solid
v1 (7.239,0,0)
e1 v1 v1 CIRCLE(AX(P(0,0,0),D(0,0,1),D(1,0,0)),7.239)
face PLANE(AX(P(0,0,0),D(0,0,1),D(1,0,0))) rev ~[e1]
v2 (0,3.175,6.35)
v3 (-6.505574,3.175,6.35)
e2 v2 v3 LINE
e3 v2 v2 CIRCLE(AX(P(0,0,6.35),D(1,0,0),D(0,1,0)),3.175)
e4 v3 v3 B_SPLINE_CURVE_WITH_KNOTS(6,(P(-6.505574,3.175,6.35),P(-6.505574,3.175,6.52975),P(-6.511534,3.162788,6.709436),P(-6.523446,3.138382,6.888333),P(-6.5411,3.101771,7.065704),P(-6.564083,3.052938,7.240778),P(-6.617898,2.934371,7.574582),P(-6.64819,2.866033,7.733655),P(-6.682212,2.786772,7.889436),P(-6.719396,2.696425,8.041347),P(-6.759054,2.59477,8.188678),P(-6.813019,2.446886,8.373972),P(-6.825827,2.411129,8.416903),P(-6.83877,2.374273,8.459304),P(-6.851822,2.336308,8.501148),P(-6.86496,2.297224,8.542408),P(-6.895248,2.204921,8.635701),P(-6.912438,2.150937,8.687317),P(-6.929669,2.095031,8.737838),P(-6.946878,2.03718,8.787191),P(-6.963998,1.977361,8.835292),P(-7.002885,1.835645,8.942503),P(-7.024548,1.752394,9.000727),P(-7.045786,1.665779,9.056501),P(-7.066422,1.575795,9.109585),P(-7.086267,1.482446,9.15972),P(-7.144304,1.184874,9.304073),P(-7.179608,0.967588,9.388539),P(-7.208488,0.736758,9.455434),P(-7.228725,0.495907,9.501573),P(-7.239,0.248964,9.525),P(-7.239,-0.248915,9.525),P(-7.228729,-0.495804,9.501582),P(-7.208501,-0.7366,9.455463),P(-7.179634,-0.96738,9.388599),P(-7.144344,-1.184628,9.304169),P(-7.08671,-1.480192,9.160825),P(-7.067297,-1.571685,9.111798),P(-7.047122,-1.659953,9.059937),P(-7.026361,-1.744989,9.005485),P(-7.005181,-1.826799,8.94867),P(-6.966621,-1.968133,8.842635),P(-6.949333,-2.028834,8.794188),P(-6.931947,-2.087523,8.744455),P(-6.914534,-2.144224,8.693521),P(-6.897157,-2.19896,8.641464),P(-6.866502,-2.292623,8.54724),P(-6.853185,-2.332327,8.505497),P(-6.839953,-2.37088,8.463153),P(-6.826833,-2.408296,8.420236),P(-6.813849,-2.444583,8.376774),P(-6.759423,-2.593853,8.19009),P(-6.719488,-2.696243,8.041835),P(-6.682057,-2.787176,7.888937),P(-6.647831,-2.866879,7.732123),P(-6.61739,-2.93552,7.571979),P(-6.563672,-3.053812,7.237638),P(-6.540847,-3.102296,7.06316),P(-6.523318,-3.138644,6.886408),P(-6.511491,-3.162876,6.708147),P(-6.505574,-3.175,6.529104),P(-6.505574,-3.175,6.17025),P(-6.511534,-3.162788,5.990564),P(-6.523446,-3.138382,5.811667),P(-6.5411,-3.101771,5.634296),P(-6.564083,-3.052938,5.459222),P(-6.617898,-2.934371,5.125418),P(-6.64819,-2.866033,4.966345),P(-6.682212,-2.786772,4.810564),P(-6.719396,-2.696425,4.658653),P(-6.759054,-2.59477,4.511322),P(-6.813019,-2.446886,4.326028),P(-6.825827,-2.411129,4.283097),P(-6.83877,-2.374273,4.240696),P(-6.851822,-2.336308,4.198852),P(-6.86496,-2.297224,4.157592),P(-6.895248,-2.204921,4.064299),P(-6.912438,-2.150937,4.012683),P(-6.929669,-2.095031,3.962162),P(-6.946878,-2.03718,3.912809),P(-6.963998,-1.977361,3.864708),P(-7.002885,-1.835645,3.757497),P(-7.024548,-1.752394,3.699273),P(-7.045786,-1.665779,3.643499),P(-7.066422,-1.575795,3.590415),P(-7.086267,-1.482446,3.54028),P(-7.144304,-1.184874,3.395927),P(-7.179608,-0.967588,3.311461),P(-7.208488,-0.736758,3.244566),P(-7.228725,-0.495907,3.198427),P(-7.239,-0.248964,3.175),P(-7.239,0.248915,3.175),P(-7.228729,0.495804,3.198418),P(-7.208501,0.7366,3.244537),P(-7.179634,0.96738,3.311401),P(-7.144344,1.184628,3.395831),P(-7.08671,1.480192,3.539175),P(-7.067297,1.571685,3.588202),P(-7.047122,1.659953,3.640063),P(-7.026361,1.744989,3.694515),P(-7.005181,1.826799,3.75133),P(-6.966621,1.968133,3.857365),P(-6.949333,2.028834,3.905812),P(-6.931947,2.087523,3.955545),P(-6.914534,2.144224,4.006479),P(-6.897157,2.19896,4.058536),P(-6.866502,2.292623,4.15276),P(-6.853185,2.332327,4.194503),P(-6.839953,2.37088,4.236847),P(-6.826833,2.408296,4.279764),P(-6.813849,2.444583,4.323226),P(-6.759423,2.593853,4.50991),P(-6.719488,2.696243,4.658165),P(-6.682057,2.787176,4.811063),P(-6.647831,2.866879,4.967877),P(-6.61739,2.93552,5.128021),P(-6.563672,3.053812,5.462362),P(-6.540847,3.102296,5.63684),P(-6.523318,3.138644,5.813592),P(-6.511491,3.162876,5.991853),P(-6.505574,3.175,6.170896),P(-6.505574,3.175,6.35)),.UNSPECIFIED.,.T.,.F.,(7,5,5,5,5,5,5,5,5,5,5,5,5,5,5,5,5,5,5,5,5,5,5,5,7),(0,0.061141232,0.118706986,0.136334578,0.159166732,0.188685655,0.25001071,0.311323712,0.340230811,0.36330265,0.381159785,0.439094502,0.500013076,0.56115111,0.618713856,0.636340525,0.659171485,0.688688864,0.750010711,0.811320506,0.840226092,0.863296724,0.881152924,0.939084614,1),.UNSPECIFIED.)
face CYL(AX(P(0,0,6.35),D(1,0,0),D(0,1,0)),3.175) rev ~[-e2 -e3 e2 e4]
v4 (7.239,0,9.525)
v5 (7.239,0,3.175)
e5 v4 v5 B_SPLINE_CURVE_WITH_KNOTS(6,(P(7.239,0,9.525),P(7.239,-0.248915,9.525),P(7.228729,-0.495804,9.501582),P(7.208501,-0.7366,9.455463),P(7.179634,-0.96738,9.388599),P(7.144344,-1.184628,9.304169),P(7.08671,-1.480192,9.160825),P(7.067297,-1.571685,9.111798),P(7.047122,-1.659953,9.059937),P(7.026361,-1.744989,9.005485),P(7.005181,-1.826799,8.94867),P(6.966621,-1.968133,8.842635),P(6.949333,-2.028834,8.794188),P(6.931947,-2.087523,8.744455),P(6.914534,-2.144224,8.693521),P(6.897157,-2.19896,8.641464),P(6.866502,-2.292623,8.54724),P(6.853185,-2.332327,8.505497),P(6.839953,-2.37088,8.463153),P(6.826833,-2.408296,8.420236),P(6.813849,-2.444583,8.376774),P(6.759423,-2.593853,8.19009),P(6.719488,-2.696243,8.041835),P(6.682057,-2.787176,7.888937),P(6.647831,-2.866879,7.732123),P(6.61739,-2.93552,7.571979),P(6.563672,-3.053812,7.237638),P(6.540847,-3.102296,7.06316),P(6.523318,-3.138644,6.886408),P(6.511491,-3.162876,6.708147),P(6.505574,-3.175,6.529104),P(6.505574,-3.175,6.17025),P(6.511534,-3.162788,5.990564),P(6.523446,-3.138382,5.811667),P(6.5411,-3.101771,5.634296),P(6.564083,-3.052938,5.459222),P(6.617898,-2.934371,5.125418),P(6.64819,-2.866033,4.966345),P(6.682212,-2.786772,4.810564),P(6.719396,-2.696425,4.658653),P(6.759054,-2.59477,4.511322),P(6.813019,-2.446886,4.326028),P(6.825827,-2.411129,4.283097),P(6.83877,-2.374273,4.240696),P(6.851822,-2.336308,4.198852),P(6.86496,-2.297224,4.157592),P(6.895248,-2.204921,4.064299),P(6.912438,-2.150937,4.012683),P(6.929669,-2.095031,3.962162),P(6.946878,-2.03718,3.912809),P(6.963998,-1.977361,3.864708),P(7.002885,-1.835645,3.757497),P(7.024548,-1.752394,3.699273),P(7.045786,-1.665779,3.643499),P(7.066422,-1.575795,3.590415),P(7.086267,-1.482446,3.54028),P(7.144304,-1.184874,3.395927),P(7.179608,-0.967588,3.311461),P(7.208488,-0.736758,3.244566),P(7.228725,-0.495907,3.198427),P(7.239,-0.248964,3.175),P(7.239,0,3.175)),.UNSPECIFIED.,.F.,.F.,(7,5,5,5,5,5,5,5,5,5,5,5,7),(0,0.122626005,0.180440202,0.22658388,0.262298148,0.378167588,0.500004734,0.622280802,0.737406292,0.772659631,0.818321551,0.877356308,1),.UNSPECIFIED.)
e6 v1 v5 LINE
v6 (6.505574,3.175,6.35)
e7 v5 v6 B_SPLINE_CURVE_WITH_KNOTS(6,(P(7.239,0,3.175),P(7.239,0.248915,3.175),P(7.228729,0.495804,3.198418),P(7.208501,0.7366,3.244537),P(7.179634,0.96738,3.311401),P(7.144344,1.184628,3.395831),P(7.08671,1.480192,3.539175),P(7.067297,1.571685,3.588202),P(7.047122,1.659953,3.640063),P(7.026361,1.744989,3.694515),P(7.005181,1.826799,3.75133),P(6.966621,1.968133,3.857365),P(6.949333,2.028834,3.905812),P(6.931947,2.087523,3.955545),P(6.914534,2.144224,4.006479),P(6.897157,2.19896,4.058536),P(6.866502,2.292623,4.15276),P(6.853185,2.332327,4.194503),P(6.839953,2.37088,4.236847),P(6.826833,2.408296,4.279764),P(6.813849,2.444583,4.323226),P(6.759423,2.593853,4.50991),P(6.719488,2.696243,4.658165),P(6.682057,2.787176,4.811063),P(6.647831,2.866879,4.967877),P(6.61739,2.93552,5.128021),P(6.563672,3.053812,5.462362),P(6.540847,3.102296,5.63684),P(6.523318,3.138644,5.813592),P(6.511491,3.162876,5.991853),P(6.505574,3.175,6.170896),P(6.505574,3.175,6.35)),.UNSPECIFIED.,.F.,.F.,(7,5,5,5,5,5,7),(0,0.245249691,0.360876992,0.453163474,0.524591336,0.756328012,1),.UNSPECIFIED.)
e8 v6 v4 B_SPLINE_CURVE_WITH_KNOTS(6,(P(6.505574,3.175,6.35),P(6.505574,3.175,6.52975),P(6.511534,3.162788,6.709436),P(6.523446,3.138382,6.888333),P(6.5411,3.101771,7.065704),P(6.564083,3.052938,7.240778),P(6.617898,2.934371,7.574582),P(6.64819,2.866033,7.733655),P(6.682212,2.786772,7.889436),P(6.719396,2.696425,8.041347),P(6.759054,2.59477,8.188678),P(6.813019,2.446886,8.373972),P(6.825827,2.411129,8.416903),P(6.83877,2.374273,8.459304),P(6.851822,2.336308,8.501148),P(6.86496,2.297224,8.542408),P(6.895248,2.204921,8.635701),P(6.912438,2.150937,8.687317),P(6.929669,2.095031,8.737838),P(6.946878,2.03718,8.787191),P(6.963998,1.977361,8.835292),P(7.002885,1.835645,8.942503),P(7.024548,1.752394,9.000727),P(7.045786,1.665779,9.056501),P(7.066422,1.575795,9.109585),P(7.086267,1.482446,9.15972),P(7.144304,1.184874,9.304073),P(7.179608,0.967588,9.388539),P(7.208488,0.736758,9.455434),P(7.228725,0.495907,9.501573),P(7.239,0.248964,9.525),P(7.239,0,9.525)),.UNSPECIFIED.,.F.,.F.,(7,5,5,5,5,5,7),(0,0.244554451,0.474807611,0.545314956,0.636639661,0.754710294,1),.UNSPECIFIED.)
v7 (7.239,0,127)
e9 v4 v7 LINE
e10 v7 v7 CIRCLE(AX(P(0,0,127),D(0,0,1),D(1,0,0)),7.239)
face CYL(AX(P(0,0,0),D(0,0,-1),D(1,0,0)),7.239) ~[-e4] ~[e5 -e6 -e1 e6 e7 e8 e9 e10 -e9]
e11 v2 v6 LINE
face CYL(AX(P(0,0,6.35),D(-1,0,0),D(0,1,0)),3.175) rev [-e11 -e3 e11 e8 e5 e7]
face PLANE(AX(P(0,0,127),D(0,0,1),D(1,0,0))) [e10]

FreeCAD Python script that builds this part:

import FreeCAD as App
import Part
import Sketcher
Q = App.Units.Quantity

doc = App.newDocument("Part")
params = doc.addObject("Spreadsheet::Sheet", "Params")
for row, (alias, value) in enumerate([
    ("sketch1_diameter", "0.57 in"),
    ("pad1_length", "5 in"),
    ("sketch2_diameter", "0.25 in"),
], start=1):
    params.set(f"A{row}", alias)
    params.set(f"B{row}", "=" + value)
    params.setAlias(f"B{row}", alias)

body = doc.addObject("PartDesign::Body", "Body")

sketch1 = doc.addObject("Sketcher::SketchObject", "Sketch")
body.addObject(sketch1)
sketch1.AttachmentSupport = (doc.XY_Plane, [""])
sketch1.MapMode = "FlatFace"
sketch1.addGeometry(Part.Circle(App.Vector(0, 0, 0), App.Vector(0, 0, 1), 7), False)
sketch1.addConstraint(Sketcher.Constraint("Coincident", 0, 3, -1, 1))
sketch1.addConstraint(Sketcher.Constraint("Diameter", 0, Q("0.57 in")))
sketch1.setExpression("Constraints[1]", "Params.sketch1_diameter")
pad1 = doc.addObject("PartDesign::Pad", "Pad")
body.addObject(pad1)
pad1.Profile = sketch1
pad1.setExpression("Length", "Params.pad1_length")

sketch2 = doc.addObject("Sketcher::SketchObject", "Sketch001")
body.addObject(sketch2)
sketch2.AttachmentSupport = (doc.YZ_Plane, [""])
sketch2.MapMode = "FlatFace"
sketch2.addGeometry(Part.Circle(App.Vector(0, 6.3, 0), App.Vector(0, 0, 1), 3.2), False)
sketch2.addConstraint(Sketcher.Constraint("PointOnObject", 0, 3, -2))
sketch2.addConstraint(Sketcher.Constraint("Diameter", 0, Q("0.25 in")))
sketch2.addConstraint(Sketcher.Constraint("DistanceY", -1, 1, 0, 3, Q("0.25 in")))
sketch2.setExpression("Constraints[1]", "Params.sketch2_diameter")
pocket1 = doc.addObject("PartDesign::Pocket", "Pocket")
body.addObject(pocket1)
pocket1.Profile = sketch2
pocket1.Type = "ThroughAll"
pocket1.Midplane = True

doc.recompute()
